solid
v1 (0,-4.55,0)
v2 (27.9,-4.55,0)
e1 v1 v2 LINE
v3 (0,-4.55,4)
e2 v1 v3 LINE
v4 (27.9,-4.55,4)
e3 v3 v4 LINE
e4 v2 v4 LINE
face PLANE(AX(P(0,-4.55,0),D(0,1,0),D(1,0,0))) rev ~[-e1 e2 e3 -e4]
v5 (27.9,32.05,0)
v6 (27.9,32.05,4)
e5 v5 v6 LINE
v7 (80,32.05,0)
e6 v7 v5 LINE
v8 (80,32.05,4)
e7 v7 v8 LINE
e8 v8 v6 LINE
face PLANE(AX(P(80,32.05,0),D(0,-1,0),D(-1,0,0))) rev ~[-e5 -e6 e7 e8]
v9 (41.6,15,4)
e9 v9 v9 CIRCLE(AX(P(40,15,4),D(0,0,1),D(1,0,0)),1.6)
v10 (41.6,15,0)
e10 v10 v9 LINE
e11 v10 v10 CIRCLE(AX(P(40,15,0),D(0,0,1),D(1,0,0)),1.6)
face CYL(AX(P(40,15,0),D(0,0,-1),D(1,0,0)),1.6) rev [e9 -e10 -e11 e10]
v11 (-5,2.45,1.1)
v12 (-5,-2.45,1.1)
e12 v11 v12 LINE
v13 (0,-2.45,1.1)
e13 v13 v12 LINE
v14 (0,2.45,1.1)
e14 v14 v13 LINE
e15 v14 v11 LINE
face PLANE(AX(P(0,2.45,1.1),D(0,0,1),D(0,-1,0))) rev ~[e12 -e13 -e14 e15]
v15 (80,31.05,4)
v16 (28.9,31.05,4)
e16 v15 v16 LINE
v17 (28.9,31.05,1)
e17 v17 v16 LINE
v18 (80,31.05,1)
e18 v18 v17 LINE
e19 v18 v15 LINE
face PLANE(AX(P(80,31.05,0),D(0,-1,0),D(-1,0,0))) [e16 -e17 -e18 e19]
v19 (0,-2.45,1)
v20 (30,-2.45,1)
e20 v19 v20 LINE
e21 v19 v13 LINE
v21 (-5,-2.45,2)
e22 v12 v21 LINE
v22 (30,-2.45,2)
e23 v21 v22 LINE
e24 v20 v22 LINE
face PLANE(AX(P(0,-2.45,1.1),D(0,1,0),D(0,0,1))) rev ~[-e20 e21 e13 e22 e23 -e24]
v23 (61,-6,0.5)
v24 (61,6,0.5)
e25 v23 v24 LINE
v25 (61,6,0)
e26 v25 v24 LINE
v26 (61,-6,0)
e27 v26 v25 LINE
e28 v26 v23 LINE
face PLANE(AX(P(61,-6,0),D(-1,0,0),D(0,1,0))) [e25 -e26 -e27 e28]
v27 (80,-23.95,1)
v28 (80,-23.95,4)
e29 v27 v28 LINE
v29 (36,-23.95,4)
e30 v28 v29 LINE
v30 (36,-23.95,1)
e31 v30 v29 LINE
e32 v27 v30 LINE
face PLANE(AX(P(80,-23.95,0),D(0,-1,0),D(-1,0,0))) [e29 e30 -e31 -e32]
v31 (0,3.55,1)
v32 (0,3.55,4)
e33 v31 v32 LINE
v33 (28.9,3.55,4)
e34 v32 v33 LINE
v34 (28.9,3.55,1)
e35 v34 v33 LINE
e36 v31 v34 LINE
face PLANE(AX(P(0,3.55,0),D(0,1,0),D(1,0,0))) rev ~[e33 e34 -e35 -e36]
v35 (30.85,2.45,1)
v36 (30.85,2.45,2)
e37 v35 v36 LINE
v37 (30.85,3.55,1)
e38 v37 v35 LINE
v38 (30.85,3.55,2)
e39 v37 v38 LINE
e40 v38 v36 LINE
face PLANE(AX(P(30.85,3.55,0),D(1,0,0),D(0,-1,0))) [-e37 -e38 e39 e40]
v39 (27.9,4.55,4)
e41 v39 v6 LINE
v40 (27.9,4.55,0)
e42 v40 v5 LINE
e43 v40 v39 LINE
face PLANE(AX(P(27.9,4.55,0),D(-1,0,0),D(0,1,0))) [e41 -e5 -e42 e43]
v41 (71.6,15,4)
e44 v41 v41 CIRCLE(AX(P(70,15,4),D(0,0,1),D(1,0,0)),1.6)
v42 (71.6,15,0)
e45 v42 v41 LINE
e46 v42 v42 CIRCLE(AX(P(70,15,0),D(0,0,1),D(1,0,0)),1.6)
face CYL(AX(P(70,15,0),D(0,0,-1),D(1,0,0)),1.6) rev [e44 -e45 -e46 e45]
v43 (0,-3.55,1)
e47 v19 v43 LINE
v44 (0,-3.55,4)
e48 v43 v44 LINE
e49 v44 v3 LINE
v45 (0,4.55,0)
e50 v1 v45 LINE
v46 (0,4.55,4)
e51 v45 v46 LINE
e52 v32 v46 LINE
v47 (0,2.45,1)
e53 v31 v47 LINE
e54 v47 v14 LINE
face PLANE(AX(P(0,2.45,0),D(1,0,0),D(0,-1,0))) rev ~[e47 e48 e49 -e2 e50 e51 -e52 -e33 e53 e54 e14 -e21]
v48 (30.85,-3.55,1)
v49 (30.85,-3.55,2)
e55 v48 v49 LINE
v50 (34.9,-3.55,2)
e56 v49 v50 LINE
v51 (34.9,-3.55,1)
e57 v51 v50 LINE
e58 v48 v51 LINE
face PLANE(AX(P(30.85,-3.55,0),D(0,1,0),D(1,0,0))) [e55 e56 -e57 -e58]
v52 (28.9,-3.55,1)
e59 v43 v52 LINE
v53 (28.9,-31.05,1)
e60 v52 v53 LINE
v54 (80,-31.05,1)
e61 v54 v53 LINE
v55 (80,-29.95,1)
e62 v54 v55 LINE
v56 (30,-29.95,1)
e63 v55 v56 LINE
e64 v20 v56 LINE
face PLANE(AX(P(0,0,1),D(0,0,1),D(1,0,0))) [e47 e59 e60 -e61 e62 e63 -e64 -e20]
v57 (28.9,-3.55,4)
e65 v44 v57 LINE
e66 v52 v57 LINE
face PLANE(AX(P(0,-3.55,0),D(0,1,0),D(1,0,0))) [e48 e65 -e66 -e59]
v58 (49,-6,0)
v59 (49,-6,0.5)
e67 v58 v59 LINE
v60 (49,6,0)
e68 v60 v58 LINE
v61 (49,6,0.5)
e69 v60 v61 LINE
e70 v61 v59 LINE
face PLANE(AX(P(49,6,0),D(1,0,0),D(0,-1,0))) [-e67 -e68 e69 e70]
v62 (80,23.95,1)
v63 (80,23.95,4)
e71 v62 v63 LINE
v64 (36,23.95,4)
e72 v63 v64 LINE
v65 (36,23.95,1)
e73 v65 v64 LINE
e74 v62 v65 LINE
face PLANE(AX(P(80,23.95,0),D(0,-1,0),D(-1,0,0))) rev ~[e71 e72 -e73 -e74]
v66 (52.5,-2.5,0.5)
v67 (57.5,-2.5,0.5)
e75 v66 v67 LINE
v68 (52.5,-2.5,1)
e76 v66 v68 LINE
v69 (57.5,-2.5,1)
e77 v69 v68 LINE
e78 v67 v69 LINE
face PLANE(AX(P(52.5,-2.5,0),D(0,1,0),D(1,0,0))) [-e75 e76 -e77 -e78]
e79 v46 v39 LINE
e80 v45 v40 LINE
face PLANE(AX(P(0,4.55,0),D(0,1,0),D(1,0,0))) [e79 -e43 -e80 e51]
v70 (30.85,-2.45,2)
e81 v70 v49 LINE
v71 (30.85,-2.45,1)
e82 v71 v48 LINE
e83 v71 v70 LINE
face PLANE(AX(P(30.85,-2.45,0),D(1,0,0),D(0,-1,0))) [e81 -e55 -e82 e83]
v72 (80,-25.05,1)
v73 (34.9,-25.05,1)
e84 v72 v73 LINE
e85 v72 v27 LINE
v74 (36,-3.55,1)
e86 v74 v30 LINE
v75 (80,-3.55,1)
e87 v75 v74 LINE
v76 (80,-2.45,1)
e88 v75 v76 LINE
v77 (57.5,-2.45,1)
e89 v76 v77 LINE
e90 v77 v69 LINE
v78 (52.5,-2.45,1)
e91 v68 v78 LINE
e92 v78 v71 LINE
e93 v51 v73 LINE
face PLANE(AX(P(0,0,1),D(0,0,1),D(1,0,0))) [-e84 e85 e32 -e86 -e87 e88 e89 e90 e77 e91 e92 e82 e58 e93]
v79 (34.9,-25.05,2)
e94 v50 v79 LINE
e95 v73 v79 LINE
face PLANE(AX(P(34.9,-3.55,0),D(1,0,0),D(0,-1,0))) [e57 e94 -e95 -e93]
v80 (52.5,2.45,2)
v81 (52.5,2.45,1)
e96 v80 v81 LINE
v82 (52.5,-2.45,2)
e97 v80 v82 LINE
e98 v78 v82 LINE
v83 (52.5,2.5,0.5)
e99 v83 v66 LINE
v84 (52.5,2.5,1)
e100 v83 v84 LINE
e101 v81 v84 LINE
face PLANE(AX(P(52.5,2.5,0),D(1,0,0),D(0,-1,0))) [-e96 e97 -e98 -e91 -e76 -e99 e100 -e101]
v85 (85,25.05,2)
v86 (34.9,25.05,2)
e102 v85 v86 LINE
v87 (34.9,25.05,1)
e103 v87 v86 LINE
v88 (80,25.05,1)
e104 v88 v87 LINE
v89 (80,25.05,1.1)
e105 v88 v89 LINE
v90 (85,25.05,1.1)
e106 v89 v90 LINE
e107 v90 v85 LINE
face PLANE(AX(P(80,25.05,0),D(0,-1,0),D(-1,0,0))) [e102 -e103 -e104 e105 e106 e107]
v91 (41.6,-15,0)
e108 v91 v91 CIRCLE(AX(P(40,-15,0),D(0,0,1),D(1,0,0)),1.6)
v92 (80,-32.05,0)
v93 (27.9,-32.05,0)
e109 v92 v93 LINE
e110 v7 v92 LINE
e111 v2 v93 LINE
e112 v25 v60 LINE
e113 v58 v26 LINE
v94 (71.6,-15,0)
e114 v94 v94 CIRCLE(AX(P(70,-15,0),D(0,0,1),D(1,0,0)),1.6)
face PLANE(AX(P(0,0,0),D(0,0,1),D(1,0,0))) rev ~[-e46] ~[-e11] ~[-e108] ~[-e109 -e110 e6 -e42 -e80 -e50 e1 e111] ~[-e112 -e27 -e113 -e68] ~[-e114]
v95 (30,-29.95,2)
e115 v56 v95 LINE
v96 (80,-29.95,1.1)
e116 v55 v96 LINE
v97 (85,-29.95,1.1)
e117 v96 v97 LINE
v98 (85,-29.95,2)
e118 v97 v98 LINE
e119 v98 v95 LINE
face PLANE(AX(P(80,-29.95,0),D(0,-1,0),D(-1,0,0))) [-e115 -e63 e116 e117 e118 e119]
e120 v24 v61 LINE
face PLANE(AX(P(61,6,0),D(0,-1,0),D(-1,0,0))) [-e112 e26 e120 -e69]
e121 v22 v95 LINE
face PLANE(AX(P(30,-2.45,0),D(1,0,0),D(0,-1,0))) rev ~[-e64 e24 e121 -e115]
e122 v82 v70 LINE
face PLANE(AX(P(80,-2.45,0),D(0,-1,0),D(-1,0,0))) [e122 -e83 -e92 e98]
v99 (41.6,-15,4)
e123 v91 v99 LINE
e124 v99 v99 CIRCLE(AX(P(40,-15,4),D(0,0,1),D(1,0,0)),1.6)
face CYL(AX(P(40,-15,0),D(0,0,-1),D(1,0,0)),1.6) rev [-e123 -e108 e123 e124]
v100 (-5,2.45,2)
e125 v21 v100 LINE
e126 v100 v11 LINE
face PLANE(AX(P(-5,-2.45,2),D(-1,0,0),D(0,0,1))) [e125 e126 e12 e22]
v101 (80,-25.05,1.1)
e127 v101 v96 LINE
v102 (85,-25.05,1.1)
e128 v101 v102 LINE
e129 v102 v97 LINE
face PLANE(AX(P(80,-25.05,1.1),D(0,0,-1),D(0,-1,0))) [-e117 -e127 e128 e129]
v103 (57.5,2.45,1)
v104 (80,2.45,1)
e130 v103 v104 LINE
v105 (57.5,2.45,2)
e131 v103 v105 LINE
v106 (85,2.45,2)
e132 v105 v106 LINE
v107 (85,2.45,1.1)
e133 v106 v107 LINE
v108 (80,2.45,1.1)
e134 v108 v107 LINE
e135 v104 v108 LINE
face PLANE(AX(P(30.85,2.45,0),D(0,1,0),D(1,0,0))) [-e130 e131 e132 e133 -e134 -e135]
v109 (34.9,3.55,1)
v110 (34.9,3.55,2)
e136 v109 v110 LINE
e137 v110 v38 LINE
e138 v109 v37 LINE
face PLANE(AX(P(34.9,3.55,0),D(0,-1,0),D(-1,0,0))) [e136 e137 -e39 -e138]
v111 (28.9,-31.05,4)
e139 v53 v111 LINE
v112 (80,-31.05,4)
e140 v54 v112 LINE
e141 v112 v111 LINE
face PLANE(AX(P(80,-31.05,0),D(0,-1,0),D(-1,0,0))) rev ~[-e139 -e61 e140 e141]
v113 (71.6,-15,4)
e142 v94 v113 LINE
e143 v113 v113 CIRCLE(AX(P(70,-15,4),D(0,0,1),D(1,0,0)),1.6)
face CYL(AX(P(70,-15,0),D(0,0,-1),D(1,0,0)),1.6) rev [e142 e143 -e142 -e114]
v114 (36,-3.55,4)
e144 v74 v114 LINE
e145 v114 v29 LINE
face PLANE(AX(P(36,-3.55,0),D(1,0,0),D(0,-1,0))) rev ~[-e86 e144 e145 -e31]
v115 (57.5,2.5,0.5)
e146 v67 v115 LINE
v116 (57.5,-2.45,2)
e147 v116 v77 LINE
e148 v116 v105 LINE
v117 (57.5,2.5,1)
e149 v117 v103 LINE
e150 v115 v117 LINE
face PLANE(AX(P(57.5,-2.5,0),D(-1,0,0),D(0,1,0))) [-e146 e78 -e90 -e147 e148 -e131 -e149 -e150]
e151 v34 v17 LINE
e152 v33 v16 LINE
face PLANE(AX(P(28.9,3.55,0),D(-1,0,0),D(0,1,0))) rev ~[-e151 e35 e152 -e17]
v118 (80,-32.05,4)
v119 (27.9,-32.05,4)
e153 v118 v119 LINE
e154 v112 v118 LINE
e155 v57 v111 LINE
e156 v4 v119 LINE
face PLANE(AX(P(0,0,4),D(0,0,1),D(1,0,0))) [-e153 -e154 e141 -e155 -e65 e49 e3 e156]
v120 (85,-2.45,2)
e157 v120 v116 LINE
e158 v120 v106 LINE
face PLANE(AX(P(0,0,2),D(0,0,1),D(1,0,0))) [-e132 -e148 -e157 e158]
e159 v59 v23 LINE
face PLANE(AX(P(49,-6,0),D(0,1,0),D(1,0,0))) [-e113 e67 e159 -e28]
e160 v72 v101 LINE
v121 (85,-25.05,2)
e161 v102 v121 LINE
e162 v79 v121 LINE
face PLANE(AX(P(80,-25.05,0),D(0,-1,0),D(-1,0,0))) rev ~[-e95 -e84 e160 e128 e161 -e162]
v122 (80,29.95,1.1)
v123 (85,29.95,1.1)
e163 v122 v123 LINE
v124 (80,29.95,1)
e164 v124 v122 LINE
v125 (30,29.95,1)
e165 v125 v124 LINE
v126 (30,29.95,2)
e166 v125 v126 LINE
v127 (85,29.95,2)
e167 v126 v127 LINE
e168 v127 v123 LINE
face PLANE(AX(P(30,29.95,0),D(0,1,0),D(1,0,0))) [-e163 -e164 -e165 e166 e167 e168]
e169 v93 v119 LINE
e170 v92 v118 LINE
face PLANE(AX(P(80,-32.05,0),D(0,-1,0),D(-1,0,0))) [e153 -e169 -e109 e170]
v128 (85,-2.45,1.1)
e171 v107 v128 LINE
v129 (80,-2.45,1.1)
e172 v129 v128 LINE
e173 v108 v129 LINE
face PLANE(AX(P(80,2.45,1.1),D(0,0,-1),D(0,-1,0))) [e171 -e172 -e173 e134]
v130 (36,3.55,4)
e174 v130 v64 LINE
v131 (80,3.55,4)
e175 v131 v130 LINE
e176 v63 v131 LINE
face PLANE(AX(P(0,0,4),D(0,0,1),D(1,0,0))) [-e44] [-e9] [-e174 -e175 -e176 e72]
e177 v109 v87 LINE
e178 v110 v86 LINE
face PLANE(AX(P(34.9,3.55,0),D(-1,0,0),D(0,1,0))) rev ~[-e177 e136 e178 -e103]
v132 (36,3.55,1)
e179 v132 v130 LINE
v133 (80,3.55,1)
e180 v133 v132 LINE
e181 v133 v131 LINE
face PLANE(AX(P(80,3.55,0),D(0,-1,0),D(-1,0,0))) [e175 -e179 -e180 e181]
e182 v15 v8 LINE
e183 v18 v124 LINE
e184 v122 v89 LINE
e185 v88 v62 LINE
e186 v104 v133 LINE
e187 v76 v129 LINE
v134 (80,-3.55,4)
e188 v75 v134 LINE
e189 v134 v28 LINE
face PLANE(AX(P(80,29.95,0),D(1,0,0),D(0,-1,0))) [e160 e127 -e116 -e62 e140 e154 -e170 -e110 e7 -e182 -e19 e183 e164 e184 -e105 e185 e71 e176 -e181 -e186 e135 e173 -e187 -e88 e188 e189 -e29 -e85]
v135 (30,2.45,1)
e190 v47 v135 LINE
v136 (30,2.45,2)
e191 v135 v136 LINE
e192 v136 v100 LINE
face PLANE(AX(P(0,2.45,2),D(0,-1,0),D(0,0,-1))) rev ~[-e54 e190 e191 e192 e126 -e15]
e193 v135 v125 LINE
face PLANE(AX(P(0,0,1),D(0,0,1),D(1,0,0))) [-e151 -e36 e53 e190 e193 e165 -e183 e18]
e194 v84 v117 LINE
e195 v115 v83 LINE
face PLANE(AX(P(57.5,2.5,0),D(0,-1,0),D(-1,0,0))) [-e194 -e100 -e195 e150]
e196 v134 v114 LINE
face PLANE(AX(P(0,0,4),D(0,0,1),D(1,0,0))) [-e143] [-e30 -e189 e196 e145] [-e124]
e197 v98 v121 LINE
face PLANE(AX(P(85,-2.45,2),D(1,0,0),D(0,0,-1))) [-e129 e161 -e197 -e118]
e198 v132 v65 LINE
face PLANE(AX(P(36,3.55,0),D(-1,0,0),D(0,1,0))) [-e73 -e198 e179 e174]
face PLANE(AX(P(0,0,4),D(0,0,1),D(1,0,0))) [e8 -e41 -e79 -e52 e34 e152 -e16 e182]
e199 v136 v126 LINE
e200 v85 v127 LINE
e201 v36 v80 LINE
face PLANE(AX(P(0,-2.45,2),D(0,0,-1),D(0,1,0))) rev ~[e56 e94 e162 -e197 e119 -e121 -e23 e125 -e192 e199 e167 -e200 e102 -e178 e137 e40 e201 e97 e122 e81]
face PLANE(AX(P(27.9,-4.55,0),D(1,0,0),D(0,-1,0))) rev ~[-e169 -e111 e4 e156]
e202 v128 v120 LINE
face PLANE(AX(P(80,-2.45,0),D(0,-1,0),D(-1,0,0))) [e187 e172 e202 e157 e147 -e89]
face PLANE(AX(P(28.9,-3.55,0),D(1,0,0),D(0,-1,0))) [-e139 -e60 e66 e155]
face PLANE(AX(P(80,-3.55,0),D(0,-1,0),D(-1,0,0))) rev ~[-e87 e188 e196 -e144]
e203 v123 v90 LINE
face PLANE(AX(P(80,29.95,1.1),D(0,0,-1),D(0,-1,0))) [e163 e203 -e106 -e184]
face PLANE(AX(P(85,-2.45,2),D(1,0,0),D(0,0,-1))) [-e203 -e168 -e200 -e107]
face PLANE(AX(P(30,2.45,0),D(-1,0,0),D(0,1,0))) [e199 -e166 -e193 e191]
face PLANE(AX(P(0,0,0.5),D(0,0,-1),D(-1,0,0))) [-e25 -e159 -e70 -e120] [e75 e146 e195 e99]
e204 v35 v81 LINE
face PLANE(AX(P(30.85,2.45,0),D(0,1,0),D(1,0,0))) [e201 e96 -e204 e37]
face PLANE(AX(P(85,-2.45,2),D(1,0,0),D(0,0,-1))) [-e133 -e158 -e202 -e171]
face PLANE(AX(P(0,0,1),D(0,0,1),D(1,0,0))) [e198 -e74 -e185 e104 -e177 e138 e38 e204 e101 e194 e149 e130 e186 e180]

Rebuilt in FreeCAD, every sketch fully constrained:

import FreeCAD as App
import Part
import Sketcher

V = App.Vector
Q = App.Units.Quantity

doc = App.newDocument("Part")
body = doc.addObject("PartDesign::Body", "Body")

# Sketch on XY plane
sketch1 = doc.addObject("Sketcher::SketchObject", "Sketch")
body.addObject(sketch1)
sketch1.AttachmentSupport = (doc.XY_Plane, [""])
sketch1.MapMode = "FlatFace"
sketch1.addGeometry([
    Part.LineSegment(V(30, 2.5, 0), V(0, 2.5, 0)),  # 0
    Part.LineSegment(V(0, 2.5, 0), V(0, -2.5, 0)),  # 1
    Part.LineSegment(V(0, -2.5, 0), V(30, -2.5, 0)),  # 2
    Part.LineSegment(V(30, -2.5, 0), V(30, -29.9, 0)),  # 3
    Part.LineSegment(V(30, -29.9, 0), V(80, -29.9, 0)),  # 4
    Part.LineSegment(V(80, -29.9, 0), V(80, -25.1, 0)),  # 5
    Part.LineSegment(V(80, -25.1, 0), V(34.9, -25.1, 0)),  # 6
    Part.LineSegment(V(34.9, -25.1, 0), V(34.9, -3.5, 0)),  # 7
    Part.LineSegment(V(34.9, -3.5, 0), V(30.9, -3.5, 0)),  # 8
    Part.LineSegment(V(30.9, -3.5, 0), V(30.9, -2.5, 0)),  # 9
    Part.LineSegment(V(30.9, -2.5, 0), V(80, -2.5, 0)),  # 10
    Part.LineSegment(V(80, -2.5, 0), V(80, 2.5, 0)),  # 11
    Part.LineSegment(V(80, 2.5, 0), V(30.9, 2.5, 0)),  # 12
    Part.LineSegment(V(30.9, 2.5, 0), V(30.9, 3.5, 0)),  # 13
    Part.LineSegment(V(30.9, 3.5, 0), V(34.9, 3.5, 0)),  # 14
    Part.LineSegment(V(34.9, 3.5, 0), V(34.9, 25.1, 0)),  # 15
    Part.LineSegment(V(34.9, 25.1, 0), V(80, 25.1, 0)),  # 16
    Part.LineSegment(V(80, 25.1, 0), V(80, 29.9, 0)),  # 17
    Part.LineSegment(V(80, 29.9, 0), V(30, 29.9, 0)),  # 18
    Part.LineSegment(V(30, 29.9, 0), V(30, 2.5, 0)),  # 19
], False)
sketch1.addConstraint([
    Sketcher.Constraint("Coincident", 0, 2, 1, 1),
    Sketcher.Constraint("Coincident", 1, 2, 2, 1),
    Sketcher.Constraint("Coincident", 2, 2, 3, 1),
    Sketcher.Constraint("Coincident", 3, 2, 4, 1),
    Sketcher.Constraint("Coincident", 4, 2, 5, 1),
    Sketcher.Constraint("Coincident", 5, 2, 6, 1),
    Sketcher.Constraint("Coincident", 6, 2, 7, 1),
    Sketcher.Constraint("Coincident", 7, 2, 8, 1),
    Sketcher.Constraint("Coincident", 8, 2, 9, 1),
    Sketcher.Constraint("Coincident", 9, 2, 10, 1),
    Sketcher.Constraint("Coincident", 10, 2, 11, 1),
    Sketcher.Constraint("Coincident", 11, 2, 12, 1),
    Sketcher.Constraint("Coincident", 12, 2, 13, 1),
    Sketcher.Constraint("Coincident", 13, 2, 14, 1),
    Sketcher.Constraint("Coincident", 14, 2, 15, 1),
    Sketcher.Constraint("Coincident", 15, 2, 16, 1),
    Sketcher.Constraint("Coincident", 16, 2, 17, 1),
    Sketcher.Constraint("Coincident", 17, 2, 18, 1),
    Sketcher.Constraint("Coincident", 18, 2, 19, 1),
    Sketcher.Constraint("Coincident", 19, 2, 0, 1),
    Sketcher.Constraint("Horizontal", 0),
    Sketcher.Constraint("Vertical", 1),
    Sketcher.Constraint("Horizontal", 2),
    Sketcher.Constraint("Vertical", 3),
    Sketcher.Constraint("Horizontal", 4),
    Sketcher.Constraint("Vertical", 5),
    Sketcher.Constraint("Horizontal", 6),
    Sketcher.Constraint("Vertical", 7),
    Sketcher.Constraint("Horizontal", 8),
    Sketcher.Constraint("Vertical", 9),
    Sketcher.Constraint("Horizontal", 10),
    Sketcher.Constraint("Vertical", 11),
    Sketcher.Constraint("Horizontal", 12),
    Sketcher.Constraint("Vertical", 13),
    Sketcher.Constraint("Horizontal", 14),
    Sketcher.Constraint("Vertical", 15),
    Sketcher.Constraint("Horizontal", 16),
    Sketcher.Constraint("Vertical", 17),
    Sketcher.Constraint("Horizontal", 18),
    Sketcher.Constraint("Vertical", 19),
    Sketcher.Constraint("Symmetric", 0, 2, 1, 2, -1, 1),
    Sketcher.Constraint("Symmetric", 9, 2, 12, 2, -1),
    Sketcher.Constraint("Symmetric", 7, 2, 14, 2, -1),
    Sketcher.Constraint("Symmetric", 5, 2, 16, 2, -1),
    Sketcher.Constraint("Symmetric", 3, 2, 18, 2, -1),
    Sketcher.Constraint("Horizontal", 2, 2, 9, 2),
    Sketcher.Constraint("Vertical", 5, 2, 10, 2),
    Sketcher.Constraint("Equal", 1, 5),
    Sketcher.Constraint("DistanceX", 0, 2, 0, 1, Q("30 mm")),
    Sketcher.Constraint("DistanceY", 1, 2, 1, 1, Q("4.9 mm")),
    Sketcher.Constraint("DistanceY", 9, 1, 9, 2, Q("1.1 mm")),
    Sketcher.Constraint("DistanceX", -1, 1, 4, 2, Q("80 mm")),
    Sketcher.Constraint("DistanceX", 8, 2, 8, 1, Q("4.05 mm")),
    Sketcher.Constraint("DistanceX", 3, 2, 6, 2, Q("4.9 mm")),
    Sketcher.Constraint("DistanceY", 5, 2, 16, 2, Q("50.1 mm")),
])
pad1 = doc.addObject("PartDesign::Pad", "Pad")
body.addObject(pad1)
pad1.Profile = sketch1
pad1.Length = 2

# Sketch on XY plane
sketch2 = doc.addObject("Sketcher::SketchObject", "Sketch001")
body.addObject(sketch2)
sketch2.AttachmentSupport = (doc.XY_Plane, [""])
sketch2.MapMode = "FlatFace"
sketch2.addGeometry([
    Part.LineSegment(V(80, 31, 0), V(29, 31, 0)),  # 0
    Part.LineSegment(V(29, 31, 0), V(29, 4, 0)),  # 1
    Part.LineSegment(V(29, 4, 0), V(0, 4, 0)),  # 2
    Part.LineSegment(V(0, 4, 0), V(0, -4, 0)),  # 3
    Part.LineSegment(V(0, -4, 0), V(29, -4, 0)),  # 4
    Part.LineSegment(V(29, -4, 0), V(29, -31, 0)),  # 5
    Part.LineSegment(V(29, -31, 0), V(80, -31, 0)),  # 6
    Part.LineSegment(V(80, -31, 0), V(80, -24, 0)),  # 7
    Part.LineSegment(V(80, -24, 0), V(36, -24, 0)),  # 8
    Part.LineSegment(V(36, -24, 0), V(36, -4, 0)),  # 9
    Part.LineSegment(V(36, -4, 0), V(80, -4, 0)),  # 10
    Part.LineSegment(V(80, -4, 0), V(80, 4, 0)),  # 11
    Part.LineSegment(V(80, 4, 0), V(36, 4, 0)),  # 12
    Part.LineSegment(V(36, 4, 0), V(36, 24, 0)),  # 13
    Part.LineSegment(V(36, 24, 0), V(80, 24, 0)),  # 14
    Part.LineSegment(V(80, 24, 0), V(80, 31, 0)),  # 15
], False)
sketch2.addConstraint([
    Sketcher.Constraint("Coincident", 0, 2, 1, 1),
    Sketcher.Constraint("Coincident", 1, 2, 2, 1),
    Sketcher.Constraint("Coincident", 2, 2, 3, 1),
    Sketcher.Constraint("Coincident", 3, 2, 4, 1),
    Sketcher.Constraint("Coincident", 4, 2, 5, 1),
    Sketcher.Constraint("Coincident", 5, 2, 6, 1),
    Sketcher.Constraint("Coincident", 6, 2, 7, 1),
    Sketcher.Constraint("Coincident", 7, 2, 8, 1),
    Sketcher.Constraint("Coincident", 8, 2, 9, 1),
    Sketcher.Constraint("Coincident", 9, 2, 10, 1),
    Sketcher.Constraint("Coincident", 10, 2, 11, 1),
    Sketcher.Constraint("Coincident", 11, 2, 12, 1),
    Sketcher.Constraint("Coincident", 12, 2, 13, 1),
    Sketcher.Constraint("Coincident", 13, 2, 14, 1),
    Sketcher.Constraint("Coincident", 14, 2, 15, 1),
    Sketcher.Constraint("Coincident", 15, 2, 0, 1),
    Sketcher.Constraint("Horizontal", 0),
    Sketcher.Constraint("Vertical", 1),
    Sketcher.Constraint("Horizontal", 2),
    Sketcher.Constraint("Vertical", 3),
    Sketcher.Constraint("Horizontal", 4),
    Sketcher.Constraint("Vertical", 5),
    Sketcher.Constraint("Horizontal", 6),
    Sketcher.Constraint("Vertical", 7),
    Sketcher.Constraint("Horizontal", 8),
    Sketcher.Constraint("Vertical", 9),
    Sketcher.Constraint("Horizontal", 10),
    Sketcher.Constraint("Vertical", 11),
    Sketcher.Constraint("Horizontal", 12),
    Sketcher.Constraint("Vertical", 13),
    Sketcher.Constraint("Horizontal", 14),
    Sketcher.Constraint("Vertical", 15),
    Sketcher.Constraint("Symmetric", 2, 2, 3, 2, -1, 1),
    Sketcher.Constraint("Symmetric", 0, 2, 5, 2, -1),
    Sketcher.Constraint("Symmetric", 9, 2, 12, 2, -1),
    Sketcher.Constraint("Symmetric", 7, 2, 14, 2, -1),
    Sketcher.Constraint("Horizontal", 4, 2, 9, 2),
    Sketcher.Constraint("Vertical", 7, 2, 10, 2),
    Sketcher.Constraint("Equal", 3, 7),
    Sketcher.Constraint("DistanceX", -1, 1, 6, 2, Q("80 mm")),
    Sketcher.Constraint("DistanceY", 7, 2, 0, 2, Q("55 mm")),
    Sketcher.Constraint("DistanceX", 8, 2, 8, 1, Q("44 mm")),
    Sketcher.Constraint("DistanceX", 0, 2, 0, 1, Q("51.1 mm")),
    Sketcher.Constraint("DistanceY", 3, 2, 3, 1, Q("7.1 mm")),
])
pad2 = doc.addObject("PartDesign::Pad", "Pad001")
body.addObject(pad2)
pad2.Profile = sketch2
pad2.Length = 1

# Sketch on XY plane
sketch3 = doc.addObject("Sketcher::SketchObject", "Sketch002")
body.addObject(sketch3)
sketch3.AttachmentSupport = (doc.XY_Plane, [""])
sketch3.MapMode = "FlatFace"
sketch3.addGeometry([
    Part.LineSegment(V(0, 4.5, 0), V(0, 3.5, 0)),  # 0
    Part.LineSegment(V(0, 3.5, 0), V(28.9, 3.5, 0)),  # 1
    Part.LineSegment(V(28.9, 3.5, 0), V(28.9, 31.1, 0)),  # 2
    Part.LineSegment(V(28.9, 31.1, 0), V(80, 31.1, 0)),  # 3
    Part.LineSegment(V(80, 31.1, 0), V(80, 32, 0)),  # 4
    Part.LineSegment(V(80, 32, 0), V(27.9, 32, 0)),  # 5
    Part.LineSegment(V(27.9, 32, 0), V(27.9, 4.5, 0)),  # 6
    Part.LineSegment(V(27.9, 4.5, 0), V(0, 4.5, 0)),  # 7
    Part.LineSegment(V(28.9, -3.5, 0), V(0, -3.5, 0)),  # 8
    Part.LineSegment(V(0, -3.5, 0), V(0, -4.5, 0)),  # 9
    Part.LineSegment(V(0, -4.5, 0), V(27.9, -4.5, 0)),  # 10
    Part.LineSegment(V(27.9, -4.5, 0), V(27.9, -32, 0)),  # 11
    Part.LineSegment(V(27.9, -32, 0), V(80, -32, 0)),  # 12
    Part.LineSegment(V(80, -32, 0), V(80, -31.1, 0)),  # 13
    Part.LineSegment(V(80, -31.1, 0), V(28.9, -31.1, 0)),  # 14
    Part.LineSegment(V(28.9, -31.1, 0), V(28.9, -3.5, 0)),  # 15
    Part.LineSegment(V(80, 22.9, 0), V(80, 23.9, 0)),  # 16
    Part.LineSegment(V(80, 23.9, 0), V(36, 23.9, 0)),  # 17
    Part.LineSegment(V(36, 23.9, 0), V(36, 3.5, 0)),  # 18
    Part.LineSegment(V(36, 3.5, 0), V(80, 3.5, 0)),  # 19
    Part.LineSegment(V(80, 3.5, 0), V(80, 4.5, 0)),  # 20
    Part.LineSegment(V(80, 4.5, 0), V(37, 4.5, 0)),  # 21
    Part.LineSegment(V(37, 4.5, 0), V(37, 22.9, 0)),  # 22
    Part.LineSegment(V(37, 22.9, 0), V(80, 22.9, 0)),  # 23
    Part.LineSegment(V(36, -23.9, 0), V(80, -23.9, 0)),  # 24
    Part.LineSegment(V(80, -23.9, 0), V(80, -22.9, 0)),  # 25
    Part.LineSegment(V(80, -22.9, 0), V(37, -22.9, 0)),  # 26
    Part.LineSegment(V(37, -22.9, 0), V(37, -4.5, 0)),  # 27
    Part.LineSegment(V(37, -4.5, 0), V(80, -4.5, 0)),  # 28
    Part.LineSegment(V(80, -4.5, 0), V(80, -3.5, 0)),  # 29
    Part.LineSegment(V(80, -3.5, 0), V(36, -3.5, 0)),  # 30
    Part.LineSegment(V(36, -3.5, 0), V(36, -23.9, 0)),  # 31
], False)
sketch3.addConstraint([
    Sketcher.Constraint("Coincident", 0, 2, 1, 1),
    Sketcher.Constraint("Coincident", 1, 2, 2, 1),
    Sketcher.Constraint("Coincident", 2, 2, 3, 1),
    Sketcher.Constraint("Coincident", 3, 2, 4, 1),
    Sketcher.Constraint("Coincident", 4, 2, 5, 1),
    Sketcher.Constraint("Coincident", 5, 2, 6, 1),
    Sketcher.Constraint("Coincident", 6, 2, 7, 1),
    Sketcher.Constraint("Coincident", 7, 2, 0, 1),
    Sketcher.Constraint("Coincident", 8, 2, 9, 1),
    Sketcher.Constraint("Coincident", 9, 2, 10, 1),
    Sketcher.Constraint("Coincident", 10, 2, 11, 1),
    Sketcher.Constraint("Coincident", 11, 2, 12, 1),
    Sketcher.Constraint("Coincident", 12, 2, 13, 1),
    Sketcher.Constraint("Coincident", 13, 2, 14, 1),
    Sketcher.Constraint("Coincident", 14, 2, 15, 1),
    Sketcher.Constraint("Coincident", 15, 2, 8, 1),
    Sketcher.Constraint("Coincident", 16, 2, 17, 1),
    Sketcher.Constraint("Coincident", 17, 2, 18, 1),
    Sketcher.Constraint("Coincident", 18, 2, 19, 1),
    Sketcher.Constraint("Coincident", 19, 2, 20, 1),
    Sketcher.Constraint("Coincident", 20, 2, 21, 1),
    Sketcher.Constraint("Coincident", 21, 2, 22, 1),
    Sketcher.Constraint("Coincident", 22, 2, 23, 1),
    Sketcher.Constraint("Coincident", 23, 2, 16, 1),
    Sketcher.Constraint("Coincident", 24, 2, 25, 1),
    Sketcher.Constraint("Coincident", 25, 2, 26, 1),
    Sketcher.Constraint("Coincident", 26, 2, 27, 1),
    Sketcher.Constraint("Coincident", 27, 2, 28, 1),
    Sketcher.Constraint("Coincident", 28, 2, 29, 1),
    Sketcher.Constraint("Coincident", 29, 2, 30, 1),
    Sketcher.Constraint("Coincident", 30, 2, 31, 1),
    Sketcher.Constraint("Coincident", 31, 2, 24, 1),
    Sketcher.Constraint("Vertical", 0),
    Sketcher.Constraint("Horizontal", 1),
    Sketcher.Constraint("Vertical", 2),
    Sketcher.Constraint("Horizontal", 3),
    Sketcher.Constraint("Vertical", 4),
    Sketcher.Constraint("Horizontal", 5),
    Sketcher.Constraint("Vertical", 6),
    Sketcher.Constraint("Horizontal", 7),
    Sketcher.Constraint("Horizontal", 8),
    Sketcher.Constraint("Vertical", 9),
    Sketcher.Constraint("Horizontal", 10),
    Sketcher.Constraint("Vertical", 11),
    Sketcher.Constraint("Horizontal", 12),
    Sketcher.Constraint("Vertical", 13),
    Sketcher.Constraint("Horizontal", 14),
    Sketcher.Constraint("Vertical", 15),
    Sketcher.Constraint("Vertical", 16),
    Sketcher.Constraint("Horizontal", 17),
    Sketcher.Constraint("Vertical", 18),
    Sketcher.Constraint("Horizontal", 19),
    Sketcher.Constraint("Vertical", 20),
    Sketcher.Constraint("Horizontal", 21),
    Sketcher.Constraint("Vertical", 22),
    Sketcher.Constraint("Horizontal", 23),
    Sketcher.Constraint("Horizontal", 24),
    Sketcher.Constraint("Vertical", 25),
    Sketcher.Constraint("Horizontal", 26),
    Sketcher.Constraint("Vertical", 27),
    Sketcher.Constraint("Horizontal", 28),
    Sketcher.Constraint("Vertical", 29),
    Sketcher.Constraint("Horizontal", 30),
    Sketcher.Constraint("Vertical", 31),
    Sketcher.Constraint("Symmetric", 0, 2, 8, 2, -1, 1),
    Sketcher.Constraint("Symmetric", 7, 2, 9, 2, -1),
    Sketcher.Constraint("Symmetric", 5, 2, 11, 2, -1),
    Sketcher.Constraint("Symmetric", 3, 2, 13, 2, -1),
    Sketcher.Constraint("Symmetric", 16, 2, 24, 2, -1),
    Sketcher.Constraint("Symmetric", 22, 2, 26, 2, -1),
    Sketcher.Constraint("Symmetric", 20, 2, 28, 2, -1),
    Sketcher.Constraint("Symmetric", 18, 2, 30, 2, -1),
    Sketcher.Constraint("Horizontal", 1, 2, 18, 2),
    Sketcher.Constraint("Horizontal", 7, 2, 20, 2),
    Sketcher.Constraint("Vertical", 2, 2, 14, 2),
    Sketcher.Constraint("Vertical", 13, 2, 16, 2),
    Sketcher.Constraint("Vertical", 16, 2, 19, 2),
    Sketcher.Constraint("Equal", 0, 4),
    Sketcher.Constraint("Equal", 13, 16),
    Sketcher.Constraint("DistanceY", 0, 2, 0, 1, Q("1 mm")),
    Sketcher.Constraint("DistanceX", -1, 1, 3, 2, Q("80 mm")),
    Sketcher.Constraint("DistanceX", 5, 2, 2, 2, Q("1 mm")),
    Sketcher.Constraint("DistanceY", 13, 2, 16, 2, Q("55 mm")),
    Sketcher.Constraint("DistanceX", 18, 2, 21, 2, Q("1 mm")),
    Sketcher.Constraint("DistanceX", 17, 2, 17, 1, Q("44 mm")),
    Sketcher.Constraint("DistanceX", 1, 1, 1, 2, Q("28.9 mm")),
    Sketcher.Constraint("DistanceY", 2, 1, 2, 2, Q("27.5 mm")),
    Sketcher.Constraint("DistanceY", 18, 2, 18, 1, Q("20.4 mm")),
])
pad3 = doc.addObject("PartDesign::Pad", "Pad002")
body.addObject(pad3)
pad3.Profile = sketch3
pad3.Length = 4

# Sketch on XY plane
sketch4 = doc.addObject("Sketcher::SketchObject", "Sketch003")
body.addObject(sketch4)
sketch4.AttachmentSupport = (doc.XY_Plane, [""])
sketch4.MapMode = "FlatFace"
sketch4.addGeometry([
    Part.LineSegment(V(80, 4.5, 0), V(80, 22.9, 0)),  # 0
    Part.LineSegment(V(80, 22.9, 0), V(37, 22.9, 0)),  # 1
    Part.LineSegment(V(37, 22.9, 0), V(37, 4.5, 0)),  # 2
    Part.LineSegment(V(37, 4.5, 0), V(80, 4.5, 0)),  # 3
    Part.Circle(V(40, 15, 0), V(0, 0, 1), 1.6),  # 4
    Part.Circle(V(70, 15, 0), V(0, 0, 1), 1.6),  # 5
    Part.LineSegment(V(37, -22.9, 0), V(80, -22.9, 0)),  # 6
    Part.LineSegment(V(80, -22.9, 0), V(80, -4.5, 0)),  # 7
    Part.LineSegment(V(80, -4.5, 0), V(37, -4.5, 0)),  # 8
    Part.LineSegment(V(37, -4.5, 0), V(37, -22.9, 0)),  # 9
    Part.Circle(V(40, -15, 0), V(0, 0, 1), 1.6),  # 10
    Part.Circle(V(70, -15, 0), V(0, 0, 1), 1.6),  # 11
], False)
sketch4.addConstraint([
    Sketcher.Constraint("Coincident", 0, 2, 1, 1),
    Sketcher.Constraint("Coincident", 1, 2, 2, 1),
    Sketcher.Constraint("Coincident", 2, 2, 3, 1),
    Sketcher.Constraint("Coincident", 3, 2, 0, 1),
    Sketcher.Constraint("Coincident", 6, 2, 7, 1),
    Sketcher.Constraint("Coincident", 7, 2, 8, 1),
    Sketcher.Constraint("Coincident", 8, 2, 9, 1),
    Sketcher.Constraint("Coincident", 9, 2, 6, 1),
    Sketcher.Constraint("Vertical", 0),
    Sketcher.Constraint("Horizontal", 1),
    Sketcher.Constraint("Vertical", 2),
    Sketcher.Constraint("Horizontal", 3),
    Sketcher.Constraint("Horizontal", 6),
    Sketcher.Constraint("Vertical", 7),
    Sketcher.Constraint("Horizontal", 8),
    Sketcher.Constraint("Vertical", 9),
    Sketcher.Constraint("Equal", 4, 5),
    Sketcher.Constraint("Equal", 5, 10),
    Sketcher.Constraint("Equal", 10, 11),
    Sketcher.Constraint("Symmetric", 4, 3, 10, 3, -1),
    Sketcher.Constraint("Symmetric", 5, 3, 11, 3, -1),
    Sketcher.Constraint("Symmetric", 0, 2, 6, 2, -1),
    Sketcher.Constraint("Symmetric", 2, 2, 8, 2, -1),
    Sketcher.Constraint("Horizontal", 4, 3, 5, 3),
    Sketcher.Constraint("Diameter", 4, Q("3.2 mm")),
    Sketcher.Constraint("DistanceX", -1, 1, 0, 2, Q("80 mm")),
    Sketcher.Constraint("DistanceX", 4, 3, 5, 3, Q("30 mm")),
    Sketcher.Constraint("DistanceY", 10, 3, 4, 3, Q("30 mm")),
    Sketcher.Constraint("DistanceX", 1, 2, 1, 1, Q("43 mm")),
    Sketcher.Constraint("DistanceY", 0, 1, 0, 2, Q("18.4 mm")),
    Sketcher.Constraint("DistanceX", -1, 1, 4, 3, Q("40 mm")),
    Sketcher.Constraint("DistanceY", 6, 2, 3, 2, Q("27.5 mm")),
])
pad4 = doc.addObject("PartDesign::Pad", "Pad003")
body.addObject(pad4)
pad4.Profile = sketch4
pad4.Length = 4

# Sketch on XY plane
sketch5 = doc.addObject("Sketcher::SketchObject", "Sketch004")
body.addObject(sketch5)
sketch5.AttachmentSupport = (doc.XY_Plane, [""])
sketch5.MapMode = "FlatFace"
sketch5.addGeometry([
    Part.LineSegment(V(58, -2, 0), V(52, -2, 0)),
    Part.LineSegment(V(52, -2, 0), V(52, 2, 0)),
    Part.LineSegment(V(52, 2, 0), V(58, 2, 0)),
    Part.LineSegment(V(58, 2, 0), V(58, -2, 0)),
], False)
sketch5.addConstraint([
    Sketcher.Constraint("Coincident", 0, 2, 1, 1),
    Sketcher.Constraint("Coincident", 1, 2, 2, 1),
    Sketcher.Constraint("Coincident", 2, 2, 3, 1),
    Sketcher.Constraint("Coincident", 3, 2, 0, 1),
    Sketcher.Constraint("Horizontal", 0),
    Sketcher.Constraint("Vertical", 1),
    Sketcher.Constraint("Horizontal", 2),
    Sketcher.Constraint("Vertical", 3),
    Sketcher.Constraint("Equal", 2, 1),
    Sketcher.Constraint("DistanceX", 0, 2, 0, 1, Q("5 mm")),
    Sketcher.Constraint("DistanceX", -1, 1, 0, 2, Q("52.5 mm")),
    Sketcher.Constraint("DistanceY", 0, 2, -1, 1, Q("2.5 mm")),
])
pocket1 = doc.addObject("PartDesign::Pocket", "Pocket")
body.addObject(pocket1)
pocket1.Profile = sketch5
pocket1.Length = 2
pocket1.Reversed = True

# Sketch on XY plane
sketch6 = doc.addObject("Sketcher::SketchObject", "Sketch005")
body.addObject(sketch6)
sketch6.AttachmentSupport = (doc.XY_Plane, [""])
sketch6.MapMode = "FlatFace"
sketch6.addGeometry([
    Part.LineSegment(V(61, -6, 0), V(49, -6, 0)),  # 0
    Part.LineSegment(V(49, -6, 0), V(49, 6, 0)),  # 1
    Part.LineSegment(V(49, 6, 0), V(61, 6, 0)),  # 2
    Part.LineSegment(V(61, 6, 0), V(61, -6, 0)),  # 3
    Part.LineSegment(V(52, 2, 0), V(52, -2, 0)),  # 4
    Part.LineSegment(V(52, -2, 0), V(58, -2, 0)),  # 5
    Part.LineSegment(V(58, -2, 0), V(58, 2, 0)),  # 6
    Part.LineSegment(V(58, 2, 0), V(52, 2, 0)),  # 7
], False)
sketch6.addConstraint([
    Sketcher.Constraint("Coincident", 0, 2, 1, 1),
    Sketcher.Constraint("Coincident", 1, 2, 2, 1),
    Sketcher.Constraint("Coincident", 2, 2, 3, 1),
    Sketcher.Constraint("Coincident", 3, 2, 0, 1),
    Sketcher.Constraint("Coincident", 4, 2, 5, 1),
    Sketcher.Constraint("Coincident", 5, 2, 6, 1),
    Sketcher.Constraint("Coincident", 6, 2, 7, 1),
    Sketcher.Constraint("Coincident", 7, 2, 4, 1),
    Sketcher.Constraint("Horizontal", 0),
    Sketcher.Constraint("Vertical", 1),
    Sketcher.Constraint("Horizontal", 2),
    Sketcher.Constraint("Vertical", 3),
    Sketcher.Constraint("Vertical", 4),
    Sketcher.Constraint("Horizontal", 5),
    Sketcher.Constraint("Vertical", 6),
    Sketcher.Constraint("Horizontal", 7),
    Sketcher.Constraint("Equal", 2, 1),
    Sketcher.Constraint("Equal", 7, 4),
    Sketcher.Constraint("DistanceX", 0, 2, 0, 1, Q("12 mm")),
    Sketcher.Constraint("DistanceX", 5, 1, 5, 2, Q("5 mm")),
    Sketcher.Constraint("DistanceX", -1, 1, 0, 2, Q("49 mm")),
    Sketcher.Constraint("DistanceY", 0, 2, -1, 1, Q("6 mm")),
    Sketcher.Constraint("DistanceX", -1, 1, 4, 2, Q("52.5 mm")),
    Sketcher.Constraint("DistanceY", 4, 2, -1, 1, Q("2.5 mm")),
])
pocket2 = doc.addObject("PartDesign::Pocket", "Pocket001")
body.addObject(pocket2)
pocket2.Profile = sketch6
pocket2.Length = 0.5
pocket2.Reversed = True

# Sketch on YZ plane
sketch7 = doc.addObject("Sketcher::SketchObject", "Sketch006")
body.addObject(sketch7)
sketch7.AttachmentSupport = (doc.YZ_Plane, [""])
sketch7.MapMode = "FlatFace"
sketch7.AttachmentOffset = App.Placement(V(0, 0, 80), App.Rotation())
sketch7.addGeometry([
    Part.LineSegment(V(29.9, 2, 0), V(25.1, 2, 0)),  # 0
    Part.LineSegment(V(25.1, 2, 0), V(25.1, 1.1, 0)),  # 1
    Part.LineSegment(V(25.1, 1.1, 0), V(29.9, 1.1, 0)),  # 2
    Part.LineSegment(V(29.9, 1.1, 0), V(29.9, 2, 0)),  # 3
    Part.LineSegment(V(2.5, 2, 0), V(-2.5, 2, 0)),  # 4
    Part.LineSegment(V(-2.5, 2, 0), V(-2.5, 1.1, 0)),  # 5
    Part.LineSegment(V(-2.5, 1.1, 0), V(2.5, 1.1, 0)),  # 6
    Part.LineSegment(V(2.5, 1.1, 0), V(2.5, 2, 0)),  # 7
    Part.LineSegment(V(-29.9, 1.1, 0), V(-25.1, 1.1, 0)),  # 8
    Part.LineSegment(V(-25.1, 1.1, 0), V(-25.1, 2, 0)),  # 9
    Part.LineSegment(V(-25.1, 2, 0), V(-29.9, 2, 0)),  # 10
    Part.LineSegment(V(-29.9, 2, 0), V(-29.9, 1.1, 0)),  # 11
], False)
sketch7.addConstraint([
    Sketcher.Constraint("Coincident", 0, 2, 1, 1),
    Sketcher.Constraint("Coincident", 1, 2, 2, 1),
    Sketcher.Constraint("Coincident", 2, 2, 3, 1),
    Sketcher.Constraint("Coincident", 3, 2, 0, 1),
    Sketcher.Constraint("Coincident", 4, 2, 5, 1),
    Sketcher.Constraint("Coincident", 5, 2, 6, 1),
    Sketcher.Constraint("Coincident", 6, 2, 7, 1),
    Sketcher.Constraint("Coincident", 7, 2, 4, 1),
    Sketcher.Constraint("Coincident", 8, 2, 9, 1),
    Sketcher.Constraint("Coincident", 9, 2, 10, 1),
    Sketcher.Constraint("Coincident", 10, 2, 11, 1),
    Sketcher.Constraint("Coincident", 11, 2, 8, 1),
    Sketcher.Constraint("Horizontal", 0),
    Sketcher.Constraint("Vertical", 1),
    Sketcher.Constraint("Horizontal", 2),
    Sketcher.Constraint("Vertical", 3),
    Sketcher.Constraint("Horizontal", 4),
    Sketcher.Constraint("Vertical", 5),
    Sketcher.Constraint("Horizontal", 6),
    Sketcher.Constraint("Vertical", 7),
    Sketcher.Constraint("Horizontal", 8),
    Sketcher.Constraint("Vertical", 9),
    Sketcher.Constraint("Horizontal", 10),
    Sketcher.Constraint("Vertical", 11),
    Sketcher.Constraint("Symmetric", 1, 2, 8, 2, -2),
    Sketcher.Constraint("Symmetric", 3, 2, 10, 2, -2),
    Sketcher.Constraint("Horizontal", 3, 2, 4, 2),
    Sketcher.Constraint("Horizontal", 2, 2, 5, 2),
    Sketcher.Constraint("Equal", 2, 4),
    Sketcher.Constraint("DistanceY", 1, 2, 1, 1, Q("0.9 mm")),
    Sketcher.Constraint("DistanceX", 0, 2, 0, 1, Q("4.9 mm")),
    Sketcher.Constraint("DistanceY", -1, 1, 0, 2, Q("2 mm")),
    Sketcher.Constraint("DistanceX", 4, 2, 0, 2, Q("27.5 mm")),
    Sketcher.Constraint("DistanceX", 8, 2, 5, 2, Q("22.6 mm")),
])
pad5 = doc.addObject("PartDesign::Pad", "Pad004")
body.addObject(pad5)
pad5.Profile = sketch7
pad5.Length = 5

# Sketch on YZ plane
sketch8 = doc.addObject("Sketcher::SketchObject", "Sketch007")
body.addObject(sketch8)
sketch8.AttachmentSupport = (doc.YZ_Plane, [""])
sketch8.MapMode = "FlatFace"
sketch8.addGeometry([
    Part.LineSegment(V(-2.5, 2, 0), V(2.5, 2, 0)),
    Part.LineSegment(V(2.5, 2, 0), V(2.5, 1.1, 0)),
    Part.LineSegment(V(2.5, 1.1, 0), V(-2.5, 1.1, 0)),
    Part.LineSegment(V(-2.5, 1.1, 0), V(-2.5, 2, 0)),
], False)
sketch8.addConstraint([
    Sketcher.Constraint("Coincident", 0, 2, 1, 1),
    Sketcher.Constraint("Coincident", 1, 2, 2, 1),
    Sketcher.Constraint("Coincident", 2, 2, 3, 1),
    Sketcher.Constraint("Coincident", 3, 2, 0, 1),
    Sketcher.Constraint("Horizontal", 0),
    Sketcher.Constraint("Vertical", 1),
    Sketcher.Constraint("Horizontal", 2),
    Sketcher.Constraint("Vertical", 3),
    Sketcher.Constraint("DistanceX", 0, 1, 0, 2, Q("4.9 mm")),
    Sketcher.Constraint("DistanceY", 1, 2, 1, 1, Q("0.9 mm")),
    Sketcher.Constraint("DistanceY", -1, 1, 0, 2, Q("2 mm")),
    Sketcher.Constraint("DistanceX", -1, 1, 0, 2, Q("2.45 mm")),
])
pad6 = doc.addObject("PartDesign::Pad", "Pad005")
body.addObject(pad6)
pad6.Profile = sketch8
pad6.Length = 5
pad6.Reversed = True

doc.recompute()
